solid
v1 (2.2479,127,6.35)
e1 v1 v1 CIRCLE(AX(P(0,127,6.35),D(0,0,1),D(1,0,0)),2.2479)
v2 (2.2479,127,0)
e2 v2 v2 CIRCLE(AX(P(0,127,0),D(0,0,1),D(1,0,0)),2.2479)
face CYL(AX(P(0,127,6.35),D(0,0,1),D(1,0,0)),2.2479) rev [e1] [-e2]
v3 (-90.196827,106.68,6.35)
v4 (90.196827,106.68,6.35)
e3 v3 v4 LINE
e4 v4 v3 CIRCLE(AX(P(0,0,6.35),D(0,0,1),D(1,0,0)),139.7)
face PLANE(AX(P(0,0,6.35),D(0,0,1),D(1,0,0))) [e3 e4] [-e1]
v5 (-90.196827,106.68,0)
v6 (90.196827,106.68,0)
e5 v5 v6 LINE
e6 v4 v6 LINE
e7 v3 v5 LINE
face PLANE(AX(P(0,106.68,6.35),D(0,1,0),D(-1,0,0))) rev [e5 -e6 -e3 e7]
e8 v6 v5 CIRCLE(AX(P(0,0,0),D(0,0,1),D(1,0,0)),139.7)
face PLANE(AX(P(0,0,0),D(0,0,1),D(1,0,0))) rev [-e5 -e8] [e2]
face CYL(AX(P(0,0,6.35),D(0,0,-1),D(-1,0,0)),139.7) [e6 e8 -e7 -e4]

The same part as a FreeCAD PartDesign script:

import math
import FreeCAD as App
import Part
import Sketcher
Q = App.Units.Quantity

doc = App.newDocument("Part")
params = doc.addObject("Spreadsheet::Sheet", "Params")
for row, (alias, value) in enumerate([
    ("sketch1_radius", "5.5 in"),
    ("pad1_length", "0.25 in"),
    ("sketch2_diameter", "0.177 in"),
    ("hole_diameter", "0.177 in"),
], start=1):
    params.set(f"A{row}", alias)
    params.set(f"B{row}", "=" + value)
    params.setAlias(f"B{row}", alias)

body = doc.addObject("PartDesign::Body", "Body")

# Sketch on XY plane
sketch1 = body.newObject("Sketcher::SketchObject", "Sketch")
sketch1.AttachmentSupport = (doc.getObject("XY_Plane"), [""])
sketch1.MapMode = "FlatFace"
sketch1.addGeometry([
    Part.ArcOfCircle(Part.Circle(App.Vector(0, 0, 0), App.Vector(0, 0, 1), 140), math.radians(50), math.radians(130)),
    Part.LineSegment(App.Vector(-90, 107, 0), App.Vector(90, 107, 0)),
], False)
sketch1.addConstraint([
    Sketcher.Constraint("Coincident", 0, 1, 1, 2),
    Sketcher.Constraint("Coincident", 1, 1, 0, 2),
    Sketcher.Constraint("Horizontal", 1),
    Sketcher.Constraint("Coincident", 0, 3, -1, 1),
    Sketcher.Constraint("Radius", 0, Q("5.5 in")),
    Sketcher.Constraint("DistanceY", -1, 1, 0, 1, Q("4.2 in")),
])
sketch1.setExpression("Constraints[4]", "Params.sketch1_radius")
pad1 = body.newObject("PartDesign::Pad", "Pad")
pad1.Profile = sketch1
pad1.setExpression("Length", "Params.pad1_length")

# Sketch on XY plane
sketch2 = body.newObject("Sketcher::SketchObject", "Sketch001")
sketch2.AttachmentSupport = (doc.getObject("XY_Plane"), [""])
sketch2.MapMode = "FlatFace"
sketch2.AttachmentOffset = App.Placement(App.Vector(0, 0, 0.25 * 25.4), App.Rotation())
sketch2.addGeometry(Part.Circle(App.Vector(0, 127, 0), App.Vector(0, 0, 1), 2.2), False)
sketch2.addConstraint([
    Sketcher.Constraint("PointOnObject", 0, 3, -2),
    Sketcher.Constraint("Diameter", 0, Q("0.177 in")),
    Sketcher.Constraint("DistanceY", -1, 1, 0, 3, Q("5 in")),
])
sketch2.setExpression("Constraints[1]", "Params.sketch2_diameter")
doc.recompute()
hole = body.newObject("PartDesign::Hole", "Hole")
hole.Profile = sketch2
hole.ThreadType = "None"
hole.setExpression("Diameter", "Params.hole_diameter")
hole.DepthType = "ThroughAll"

doc.recompute()
